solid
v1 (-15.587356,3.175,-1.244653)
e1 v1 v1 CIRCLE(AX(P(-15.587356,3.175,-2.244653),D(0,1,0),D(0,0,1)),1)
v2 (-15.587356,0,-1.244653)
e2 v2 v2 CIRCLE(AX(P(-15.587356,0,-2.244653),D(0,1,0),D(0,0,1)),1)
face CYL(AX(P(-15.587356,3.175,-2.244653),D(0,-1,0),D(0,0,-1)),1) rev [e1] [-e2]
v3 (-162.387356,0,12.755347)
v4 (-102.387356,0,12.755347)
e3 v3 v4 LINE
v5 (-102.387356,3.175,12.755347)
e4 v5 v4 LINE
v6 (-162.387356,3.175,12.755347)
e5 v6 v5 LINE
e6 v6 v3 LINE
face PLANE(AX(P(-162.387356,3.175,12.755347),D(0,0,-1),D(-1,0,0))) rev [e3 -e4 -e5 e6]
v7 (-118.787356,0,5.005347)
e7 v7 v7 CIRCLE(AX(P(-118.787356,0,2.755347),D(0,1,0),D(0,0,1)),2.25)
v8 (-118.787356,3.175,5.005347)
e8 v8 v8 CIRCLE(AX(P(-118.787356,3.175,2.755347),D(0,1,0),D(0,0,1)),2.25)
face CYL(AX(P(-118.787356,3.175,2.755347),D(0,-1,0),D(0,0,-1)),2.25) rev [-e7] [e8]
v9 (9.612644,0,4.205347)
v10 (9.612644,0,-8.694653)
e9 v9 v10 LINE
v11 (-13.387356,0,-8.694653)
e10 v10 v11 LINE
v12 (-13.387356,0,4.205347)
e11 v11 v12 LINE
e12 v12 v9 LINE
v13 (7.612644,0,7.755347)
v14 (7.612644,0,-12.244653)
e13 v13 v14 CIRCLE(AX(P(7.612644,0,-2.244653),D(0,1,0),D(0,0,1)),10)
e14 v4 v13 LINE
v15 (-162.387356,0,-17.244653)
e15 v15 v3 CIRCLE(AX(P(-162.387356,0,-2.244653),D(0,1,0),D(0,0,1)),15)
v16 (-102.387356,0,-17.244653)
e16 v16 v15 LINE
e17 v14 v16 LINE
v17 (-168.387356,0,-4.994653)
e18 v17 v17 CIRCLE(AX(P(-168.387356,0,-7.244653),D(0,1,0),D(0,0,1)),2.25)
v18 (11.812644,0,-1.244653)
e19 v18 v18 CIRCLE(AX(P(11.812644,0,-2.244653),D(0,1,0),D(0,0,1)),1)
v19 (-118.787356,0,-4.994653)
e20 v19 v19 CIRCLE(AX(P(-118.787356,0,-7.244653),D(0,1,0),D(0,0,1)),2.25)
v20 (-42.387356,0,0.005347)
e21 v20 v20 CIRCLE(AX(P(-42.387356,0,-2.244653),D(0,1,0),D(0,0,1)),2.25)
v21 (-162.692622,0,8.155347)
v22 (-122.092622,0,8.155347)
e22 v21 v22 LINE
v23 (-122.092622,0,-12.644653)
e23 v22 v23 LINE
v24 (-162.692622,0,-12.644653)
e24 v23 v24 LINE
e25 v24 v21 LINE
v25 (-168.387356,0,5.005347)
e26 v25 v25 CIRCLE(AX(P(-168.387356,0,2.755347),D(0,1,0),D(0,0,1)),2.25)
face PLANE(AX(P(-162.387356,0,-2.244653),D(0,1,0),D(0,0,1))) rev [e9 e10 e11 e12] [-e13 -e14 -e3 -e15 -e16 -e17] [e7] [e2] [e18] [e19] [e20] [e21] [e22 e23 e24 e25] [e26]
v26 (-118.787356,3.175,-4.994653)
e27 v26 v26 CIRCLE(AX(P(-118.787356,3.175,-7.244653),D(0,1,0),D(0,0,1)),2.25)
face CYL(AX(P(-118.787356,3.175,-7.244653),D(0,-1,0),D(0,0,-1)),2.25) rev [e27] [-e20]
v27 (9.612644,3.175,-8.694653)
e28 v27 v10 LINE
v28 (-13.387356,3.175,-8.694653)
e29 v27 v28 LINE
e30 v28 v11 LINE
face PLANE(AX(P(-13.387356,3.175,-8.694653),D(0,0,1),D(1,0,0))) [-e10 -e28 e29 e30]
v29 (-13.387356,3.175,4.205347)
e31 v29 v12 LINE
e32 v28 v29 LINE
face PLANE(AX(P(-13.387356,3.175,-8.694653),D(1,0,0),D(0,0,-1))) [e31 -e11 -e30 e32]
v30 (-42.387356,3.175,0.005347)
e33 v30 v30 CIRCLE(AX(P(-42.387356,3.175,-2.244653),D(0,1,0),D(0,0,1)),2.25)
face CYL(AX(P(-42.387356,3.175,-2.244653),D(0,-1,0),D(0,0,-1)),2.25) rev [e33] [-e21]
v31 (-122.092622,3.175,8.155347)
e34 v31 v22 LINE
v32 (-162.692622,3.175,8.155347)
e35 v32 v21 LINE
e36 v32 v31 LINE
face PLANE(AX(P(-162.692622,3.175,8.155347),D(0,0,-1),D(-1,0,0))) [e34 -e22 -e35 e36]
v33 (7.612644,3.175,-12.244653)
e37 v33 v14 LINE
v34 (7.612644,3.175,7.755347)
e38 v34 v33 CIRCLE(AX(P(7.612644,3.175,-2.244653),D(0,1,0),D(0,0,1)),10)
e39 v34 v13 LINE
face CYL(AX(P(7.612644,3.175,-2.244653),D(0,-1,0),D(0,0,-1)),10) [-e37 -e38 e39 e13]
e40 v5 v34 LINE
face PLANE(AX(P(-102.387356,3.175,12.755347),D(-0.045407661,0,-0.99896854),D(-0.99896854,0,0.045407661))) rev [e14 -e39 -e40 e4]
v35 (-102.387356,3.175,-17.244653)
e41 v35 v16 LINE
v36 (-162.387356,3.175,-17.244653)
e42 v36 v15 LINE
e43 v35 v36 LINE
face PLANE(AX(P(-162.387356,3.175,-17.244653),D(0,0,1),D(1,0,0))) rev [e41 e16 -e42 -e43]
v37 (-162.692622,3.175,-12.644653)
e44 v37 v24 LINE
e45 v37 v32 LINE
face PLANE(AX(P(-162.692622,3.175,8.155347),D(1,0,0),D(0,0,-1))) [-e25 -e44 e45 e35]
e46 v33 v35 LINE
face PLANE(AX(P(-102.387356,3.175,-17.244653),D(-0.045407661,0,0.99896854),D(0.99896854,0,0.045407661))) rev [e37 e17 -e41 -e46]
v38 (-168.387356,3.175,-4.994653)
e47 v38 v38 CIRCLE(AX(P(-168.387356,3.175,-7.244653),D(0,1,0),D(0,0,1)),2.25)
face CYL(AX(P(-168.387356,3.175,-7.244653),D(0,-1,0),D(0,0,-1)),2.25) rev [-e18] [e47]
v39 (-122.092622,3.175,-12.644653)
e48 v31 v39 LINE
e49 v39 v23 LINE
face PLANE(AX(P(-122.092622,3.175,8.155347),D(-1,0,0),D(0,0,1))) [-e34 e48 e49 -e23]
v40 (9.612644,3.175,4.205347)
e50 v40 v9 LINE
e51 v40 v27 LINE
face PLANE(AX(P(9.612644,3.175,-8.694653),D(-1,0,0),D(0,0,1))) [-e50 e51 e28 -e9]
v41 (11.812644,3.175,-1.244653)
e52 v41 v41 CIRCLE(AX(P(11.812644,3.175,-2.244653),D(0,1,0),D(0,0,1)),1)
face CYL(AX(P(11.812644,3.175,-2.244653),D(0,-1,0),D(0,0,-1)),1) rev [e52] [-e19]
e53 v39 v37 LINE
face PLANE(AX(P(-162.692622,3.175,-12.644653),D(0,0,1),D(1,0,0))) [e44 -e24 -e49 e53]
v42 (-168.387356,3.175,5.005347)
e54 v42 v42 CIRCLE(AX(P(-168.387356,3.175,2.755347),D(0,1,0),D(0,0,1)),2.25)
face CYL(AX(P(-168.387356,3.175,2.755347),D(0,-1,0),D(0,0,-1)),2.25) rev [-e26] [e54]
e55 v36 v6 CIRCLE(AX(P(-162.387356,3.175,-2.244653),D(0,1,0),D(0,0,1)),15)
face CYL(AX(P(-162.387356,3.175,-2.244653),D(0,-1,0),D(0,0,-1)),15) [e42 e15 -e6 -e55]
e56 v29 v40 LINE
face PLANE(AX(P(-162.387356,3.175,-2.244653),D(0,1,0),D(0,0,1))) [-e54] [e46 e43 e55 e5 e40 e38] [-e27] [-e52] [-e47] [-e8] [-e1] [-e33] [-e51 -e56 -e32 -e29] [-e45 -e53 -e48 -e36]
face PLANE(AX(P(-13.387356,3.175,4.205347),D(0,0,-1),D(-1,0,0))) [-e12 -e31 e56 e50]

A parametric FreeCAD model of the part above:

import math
import FreeCAD as App
import Part
import Sketcher

V = App.Vector


def add_polygon(sketch, points):
    """Adds a closed chain of lines whose ends are joined by coincident constraints."""
    first, n = sketch.GeometryCount, len(points)
    for a, b in zip(points, points[1:] + points[:1]):
        sketch.addGeometry(Part.LineSegment(App.Vector(*a, 0), App.Vector(*b, 0)), False)
    for i in range(n):
        sketch.addConstraint(Sketcher.Constraint("Coincident", first + i, 2, first + (i + 1) % n, 1))

doc = App.newDocument("Part")
body = doc.addObject("PartDesign::Body", "Body")

# Sketch on XZ plane
sketch1 = body.newObject("Sketcher::SketchObject", "Sketch")
sketch1.AttachmentSupport = (doc.getObject("XZ_Plane"), [""])
sketch1.MapMode = "FlatFace"
sketch1.addGeometry(Part.LineSegment(V(-102.4, -17.2, 0), V(-162.4, -17.2, 0)), False)  # 0
sketch1.addGeometry(Part.ArcOfCircle(Part.Circle(V(-162.4, -2.2, 0), V(0, 0, 1), 15), math.radians(90), math.radians(270)), False)  # 1
sketch1.addGeometry(Part.LineSegment(V(-162.4, 12.8, 0), V(-102.4, 12.8, 0)), False)  # 2
sketch1.addGeometry(Part.LineSegment(V(-102.4, 12.8, 0), V(7.6, 7.8, 0)), False)  # 3
sketch1.addGeometry(Part.ArcOfCircle(Part.Circle(V(7.6, -2.2, 0), V(0, 0, 1), 10), math.radians(-90), math.radians(90)), False)  # 4
sketch1.addGeometry(Part.LineSegment(V(7.6, -12.2, 0), V(-102.4, -17.2, 0)), False)  # 5
sketch1.addGeometry(Part.Circle(V(-118.8, 2.8, 0), V(0, 0, 1), 2.2), False)  # 6
sketch1.addGeometry(Part.Circle(V(-168.4, 2.8, 0), V(0, 0, 1), 2.2), False)  # 7
sketch1.addGeometry(Part.Circle(V(11.8, -2.2, 0), V(0, 0, 1), 1), False)  # 8
add_polygon(sketch1, [(-13.4, 4.2), (-13.4, -8.7), (9.6, -8.7), (9.6, 4.2)])  # lines 9-12
sketch1.addGeometry(Part.Circle(V(-15.6, -2.2, 0), V(0, 0, 1), 1), False)  # 13
sketch1.addGeometry(Part.Circle(V(-42.4, -2.2, 0), V(0, 0, 1), 2.2), False)  # 14
sketch1.addGeometry(Part.Circle(V(-118.8, -7.2, 0), V(0, 0, 1), 2.2), False)  # 15
add_polygon(sketch1, [(-162.7, 8.2), (-162.7, -12.6), (-122.1, -12.6), (-122.1, 8.2)])  # lines 16-19
sketch1.addGeometry(Part.Circle(V(-168.4, -7.2, 0), V(0, 0, 1), 2.2), False)  # 20
sketch1.addConstraint([
    Sketcher.Constraint("Tangent", 0, 2, 1, 2),
    Sketcher.Constraint("Tangent", 1, 1, 2, 1),
    Sketcher.Constraint("Coincident", 2, 2, 3, 1),
    Sketcher.Constraint("Coincident", 3, 2, 4, 2),
    Sketcher.Constraint("Coincident", 4, 1, 5, 1),
    Sketcher.Constraint("Coincident", 5, 2, 0, 1),
    Sketcher.Constraint("Horizontal", 0),
    Sketcher.Constraint("Horizontal", 2),
    Sketcher.Constraint("Vertical", 9),
    Sketcher.Constraint("Horizontal", 10),
    Sketcher.Constraint("Vertical", 11),
    Sketcher.Constraint("Horizontal", 12),
    Sketcher.Constraint("Vertical", 16),
    Sketcher.Constraint("Horizontal", 17),
    Sketcher.Constraint("Vertical", 18),
    Sketcher.Constraint("Horizontal", 19),
    Sketcher.Constraint("Equal", 6, 7),
    Sketcher.Constraint("Equal", 8, 13),
    Sketcher.Constraint("Equal", 7, 14),
    Sketcher.Constraint("Equal", 14, 15),
    Sketcher.Constraint("Equal", 15, 20),
    Sketcher.Constraint("Horizontal", 1, 3, 4, 3),
    Sketcher.Constraint("Horizontal", 6, 3, 7, 3),
    Sketcher.Constraint("Horizontal", 4, 3, 8, 3),
    Sketcher.Constraint("Horizontal", 8, 3, 13, 3),
    Sketcher.Constraint("Horizontal", 13, 3, 14, 3),
    Sketcher.Constraint("Horizontal", 15, 3, 20, 3),
    Sketcher.Constraint("Vertical", 6, 3, 15, 3),
    Sketcher.Constraint("Vertical", 7, 3, 20, 3),
    Sketcher.Constraint("Vertical", 4, 3, 3, 2),
    Sketcher.Constraint("Vertical", 3, 2, 4, 1),
    Sketcher.Constraint("Vertical", 2, 2, 5, 2),
    Sketcher.Constraint("Diameter", 8, 2.0),
    Sketcher.Constraint("Radius", 1, 15.0),
    Sketcher.Constraint("Radius", 4, 10.0),
    Sketcher.Constraint("Diameter", 6, 4.5),
    Sketcher.Constraint("DistanceX", 0, 2, 0, 1, 60.0),
    Sketcher.Constraint("DistanceX", 10, 1, 10, 2, 23.0),
    Sketcher.Constraint("DistanceX", 17, 1, 17, 2, 40.6),
    Sketcher.Constraint("DistanceY", 9, 2, 9, 1, 12.9),
    Sketcher.Constraint("DistanceY", 16, 2, 16, 1, 20.8),
    Sketcher.Constraint("DistanceX", 1, 3, 4, 3, 170.0),
    Sketcher.Constraint("DistanceY", 1, 3, 6, 3, 5.0),
    Sketcher.Constraint("DistanceX", 7, 3, 1, 3, 6.0),
    Sketcher.Constraint("DistanceX", 14, 3, 4, 3, 50.0),
    Sketcher.Constraint("DistanceY", 15, 3, 6, 3, 10.0),
    Sketcher.Constraint("DistanceX", 9, 2, 4, 1, 21.0),
    Sketcher.Constraint("DistanceX", 1, 3, 6, 3, 43.6),
    Sketcher.Constraint("DistanceX", 4, 3, 8, 3, 4.2),
    Sketcher.Constraint("DistanceX", 13, 3, 4, 3, 23.2),
    Sketcher.Constraint("DistanceY", 0, 2, 16, 2, 4.6),
    Sketcher.Constraint("DistanceY", 9, 2, 13, 3, 6.45),
    Sketcher.Constraint("DistanceX", 16, 2, -1, 1, 162.692622),
    Sketcher.Constraint("DistanceX", 1, 3, -1, 1, 162.387356),
    Sketcher.Constraint("DistanceY", 1, 3, -1, 1, 2.244653),
])
pad1 = body.newObject("PartDesign::Pad", "Pad")
pad1.Profile = sketch1
pad1.Length = 3.175
pad1.Reversed = True

doc.recompute()
